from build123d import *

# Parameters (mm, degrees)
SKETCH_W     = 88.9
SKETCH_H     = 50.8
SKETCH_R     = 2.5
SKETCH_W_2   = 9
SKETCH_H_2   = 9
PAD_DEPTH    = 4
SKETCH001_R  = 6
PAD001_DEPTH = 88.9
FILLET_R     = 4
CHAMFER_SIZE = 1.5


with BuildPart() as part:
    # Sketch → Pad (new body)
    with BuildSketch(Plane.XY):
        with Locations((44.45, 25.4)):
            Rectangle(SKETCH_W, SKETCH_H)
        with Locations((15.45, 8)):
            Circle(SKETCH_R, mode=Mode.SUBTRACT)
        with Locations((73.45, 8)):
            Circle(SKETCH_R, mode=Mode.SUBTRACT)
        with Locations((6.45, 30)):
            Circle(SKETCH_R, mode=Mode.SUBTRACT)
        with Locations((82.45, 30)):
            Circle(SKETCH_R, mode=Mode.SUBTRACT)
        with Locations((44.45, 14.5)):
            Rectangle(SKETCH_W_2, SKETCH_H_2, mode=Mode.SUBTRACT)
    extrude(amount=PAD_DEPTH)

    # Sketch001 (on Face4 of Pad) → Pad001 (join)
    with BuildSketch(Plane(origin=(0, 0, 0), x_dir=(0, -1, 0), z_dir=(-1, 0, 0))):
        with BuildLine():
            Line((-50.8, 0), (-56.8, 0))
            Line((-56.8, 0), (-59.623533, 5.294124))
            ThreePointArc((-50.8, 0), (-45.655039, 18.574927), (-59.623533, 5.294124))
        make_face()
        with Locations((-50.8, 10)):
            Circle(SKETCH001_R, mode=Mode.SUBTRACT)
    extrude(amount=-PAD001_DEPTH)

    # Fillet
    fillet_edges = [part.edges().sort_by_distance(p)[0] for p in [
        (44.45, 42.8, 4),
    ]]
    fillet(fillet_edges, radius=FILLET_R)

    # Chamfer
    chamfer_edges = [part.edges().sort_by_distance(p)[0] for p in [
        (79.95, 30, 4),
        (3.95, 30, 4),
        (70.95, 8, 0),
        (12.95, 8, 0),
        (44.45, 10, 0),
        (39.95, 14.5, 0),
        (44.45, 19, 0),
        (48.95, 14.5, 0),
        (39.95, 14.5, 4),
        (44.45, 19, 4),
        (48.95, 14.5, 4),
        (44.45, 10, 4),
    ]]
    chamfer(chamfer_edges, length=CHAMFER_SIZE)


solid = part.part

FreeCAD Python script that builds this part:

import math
import FreeCAD as App
import Part
import Sketcher

V = App.Vector


def edges_at(feature, points):
    """Names of the edges that pass closest to the given points."""
    edges = feature.Shape.Edges
    near = lambda p: min(range(len(edges)), key=lambda i: edges[i].distToShape(Part.Vertex(*p))[0])
    return sorted({f"Edge{near(p) + 1}" for p in points})

doc = App.newDocument("Part")
body = doc.addObject("PartDesign::Body", "Body")

sketch1 = body.newObject("Sketcher::SketchObject", "Sketch")
sketch1.AttachmentSupport = (doc.getObject("XY_Plane"), [""])
sketch1.MapMode = "FlatFace"
sketch1.addGeometry([
    Part.LineSegment(V(0, 50.8, 0), V(0, 0, 0)),
    Part.LineSegment(V(0, 0, 0), V(88.9, 0, 0)),
    Part.LineSegment(V(88.9, 0, 0), V(88.9, 50.8, 0)),
    Part.LineSegment(V(88.9, 50.8, 0), V(0, 50.8, 0)),
    Part.Circle(V(15.45, 8, 0), V(0, 0, 1), 2.5),
    Part.Circle(V(73.45, 8, 0), V(0, 0, 1), 2.5),
    Part.LineSegment(V(48.95, 10, 0), V(39.95, 10, 0)),
    Part.LineSegment(V(39.95, 10, 0), V(39.95, 19, 0)),
    Part.LineSegment(V(39.95, 19, 0), V(48.95, 19, 0)),
    Part.LineSegment(V(48.95, 19, 0), V(48.95, 10, 0)),
    Part.Circle(V(6.45, 30, 0), V(0, 0, 1), 2.5),
    Part.Circle(V(82.45, 30, 0), V(0, 0, 1), 2.5),
], False)
sketch1.addConstraint([
    Sketcher.Constraint("Coincident", 0, 2, 1, 1),
    Sketcher.Constraint("Coincident", 1, 2, 2, 1),
    Sketcher.Constraint("Coincident", 2, 2, 3, 1),
    Sketcher.Constraint("Coincident", 3, 2, 0, 1),
    Sketcher.Constraint("Coincident", 6, 2, 7, 1),
    Sketcher.Constraint("Coincident", 7, 2, 8, 1),
    Sketcher.Constraint("Coincident", 8, 2, 9, 1),
    Sketcher.Constraint("Coincident", 9, 2, 6, 1),
    Sketcher.Constraint("Vertical", 0),
    Sketcher.Constraint("Horizontal", 1),
    Sketcher.Constraint("Vertical", 2),
    Sketcher.Constraint("Horizontal", 3),
    Sketcher.Constraint("Horizontal", 6),
    Sketcher.Constraint("Vertical", 7),
    Sketcher.Constraint("Horizontal", 8),
    Sketcher.Constraint("Vertical", 9),
    Sketcher.Constraint("Coincident", 0, 2, -1, 1),
    Sketcher.Constraint("Equal", 4, 5),
    Sketcher.Constraint("Equal", 5, 10),
    Sketcher.Constraint("Equal", 10, 11),
    Sketcher.Constraint("Horizontal", 4, 3, 5, 3),
    Sketcher.Constraint("Horizontal", 10, 3, 11, 3),
    Sketcher.Constraint("Equal", 8, 7),
    Sketcher.Constraint("Diameter", 4, 5.0),
    Sketcher.Constraint("DistanceX", 6, 2, 6, 1, 9.0),
    Sketcher.Constraint("DistanceX", 1, 1, 1, 2, 88.9),
    Sketcher.Constraint("DistanceY", 0, 2, 0, 1, 50.8),
    Sketcher.Constraint("DistanceY", -1, 1, 4, 3, 8.0),
    Sketcher.Constraint("DistanceY", -1, 1, 10, 3, 30.0),
    Sketcher.Constraint("DistanceY", -1, 1, 6, 2, 10.0),
    Sketcher.Constraint("DistanceX", 4, 3, 5, 3, 58.0),
    Sketcher.Constraint("DistanceX", 10, 3, 4, 3, 9.0),
    Sketcher.Constraint("DistanceX", 5, 3, 11, 3, 9.0),
    Sketcher.Constraint("DistanceX", 4, 3, 6, 2, 24.5),
    Sketcher.Constraint("DistanceX", -1, 1, 4, 3, 15.45),
])
pad1 = body.newObject("PartDesign::Pad", "Pad")
pad1.Profile = sketch1
pad1.Length = 4

sketch2 = body.newObject("Sketcher::SketchObject", "Sketch001")
sketch2.AttachmentSupport = (doc.getObject("YZ_Plane"), [""])
sketch2.MapMode = "FlatFace"
sketch2.addGeometry([
    Part.LineSegment(V(56.8, 0, 0), V(50.8, 0, 0)),
    Part.ArcOfCircle(Part.Circle(V(50.8, 10, 0), V(0, 0, 1), 10), math.radians(-28.072446), math.radians(269.999999)),
    Part.LineSegment(V(59.623533, 5.294124, 0), V(56.8, 0, 0)),
    Part.Circle(V(50.8, 10, 0), V(0, 0, 1), 6),
], False)
sketch2.addConstraint([
    Sketcher.Constraint("Tangent", 0, 2, 1, 2),
    Sketcher.Constraint("Tangent", 1, 1, 2, 1),
    Sketcher.Constraint("Coincident", 2, 2, 0, 1),
    Sketcher.Constraint("Horizontal", 0),
    Sketcher.Constraint("Coincident", 3, 3, 1, 3),
    Sketcher.Constraint("PointOnObject", 0, 2, -1),
    Sketcher.Constraint("Diameter", 3, 12.0),
    Sketcher.Constraint("Radius", 1, 10.0),
    Sketcher.Constraint("DistanceX", 0, 2, 0, 1, 6.0),
    Sketcher.Constraint("DistanceX", -1, 1, 1, 3, 50.8),
])
pad2 = body.newObject("PartDesign::Pad", "Pad001")
pad2.Profile = sketch2
pad2.Length = 88.9
doc.recompute()

fillet = body.newObject("PartDesign::Fillet", "Fillet")
fillet.Base = (pad2, edges_at(pad2, [(44.45, 42.8, 4)]))
fillet.Radius = 4
doc.recompute()

chamfer = body.newObject("PartDesign::Chamfer", "Chamfer")
chamfer.Base = (fillet, edges_at(fillet, [
    (79.95, 30, 4),
    (3.95, 30, 4),
    (70.95, 8, 0),
    (12.95, 8, 0),
    (44.45, 10, 0),
    (39.95, 14.5, 0),
    (44.45, 19, 0),
    (48.95, 14.5, 0),
    (39.95, 14.5, 4),
    (44.45, 19, 4),
    (48.95, 14.5, 4),
    (44.45, 10, 4),
]))
chamfer.Size = 1.5

doc.recompute()
